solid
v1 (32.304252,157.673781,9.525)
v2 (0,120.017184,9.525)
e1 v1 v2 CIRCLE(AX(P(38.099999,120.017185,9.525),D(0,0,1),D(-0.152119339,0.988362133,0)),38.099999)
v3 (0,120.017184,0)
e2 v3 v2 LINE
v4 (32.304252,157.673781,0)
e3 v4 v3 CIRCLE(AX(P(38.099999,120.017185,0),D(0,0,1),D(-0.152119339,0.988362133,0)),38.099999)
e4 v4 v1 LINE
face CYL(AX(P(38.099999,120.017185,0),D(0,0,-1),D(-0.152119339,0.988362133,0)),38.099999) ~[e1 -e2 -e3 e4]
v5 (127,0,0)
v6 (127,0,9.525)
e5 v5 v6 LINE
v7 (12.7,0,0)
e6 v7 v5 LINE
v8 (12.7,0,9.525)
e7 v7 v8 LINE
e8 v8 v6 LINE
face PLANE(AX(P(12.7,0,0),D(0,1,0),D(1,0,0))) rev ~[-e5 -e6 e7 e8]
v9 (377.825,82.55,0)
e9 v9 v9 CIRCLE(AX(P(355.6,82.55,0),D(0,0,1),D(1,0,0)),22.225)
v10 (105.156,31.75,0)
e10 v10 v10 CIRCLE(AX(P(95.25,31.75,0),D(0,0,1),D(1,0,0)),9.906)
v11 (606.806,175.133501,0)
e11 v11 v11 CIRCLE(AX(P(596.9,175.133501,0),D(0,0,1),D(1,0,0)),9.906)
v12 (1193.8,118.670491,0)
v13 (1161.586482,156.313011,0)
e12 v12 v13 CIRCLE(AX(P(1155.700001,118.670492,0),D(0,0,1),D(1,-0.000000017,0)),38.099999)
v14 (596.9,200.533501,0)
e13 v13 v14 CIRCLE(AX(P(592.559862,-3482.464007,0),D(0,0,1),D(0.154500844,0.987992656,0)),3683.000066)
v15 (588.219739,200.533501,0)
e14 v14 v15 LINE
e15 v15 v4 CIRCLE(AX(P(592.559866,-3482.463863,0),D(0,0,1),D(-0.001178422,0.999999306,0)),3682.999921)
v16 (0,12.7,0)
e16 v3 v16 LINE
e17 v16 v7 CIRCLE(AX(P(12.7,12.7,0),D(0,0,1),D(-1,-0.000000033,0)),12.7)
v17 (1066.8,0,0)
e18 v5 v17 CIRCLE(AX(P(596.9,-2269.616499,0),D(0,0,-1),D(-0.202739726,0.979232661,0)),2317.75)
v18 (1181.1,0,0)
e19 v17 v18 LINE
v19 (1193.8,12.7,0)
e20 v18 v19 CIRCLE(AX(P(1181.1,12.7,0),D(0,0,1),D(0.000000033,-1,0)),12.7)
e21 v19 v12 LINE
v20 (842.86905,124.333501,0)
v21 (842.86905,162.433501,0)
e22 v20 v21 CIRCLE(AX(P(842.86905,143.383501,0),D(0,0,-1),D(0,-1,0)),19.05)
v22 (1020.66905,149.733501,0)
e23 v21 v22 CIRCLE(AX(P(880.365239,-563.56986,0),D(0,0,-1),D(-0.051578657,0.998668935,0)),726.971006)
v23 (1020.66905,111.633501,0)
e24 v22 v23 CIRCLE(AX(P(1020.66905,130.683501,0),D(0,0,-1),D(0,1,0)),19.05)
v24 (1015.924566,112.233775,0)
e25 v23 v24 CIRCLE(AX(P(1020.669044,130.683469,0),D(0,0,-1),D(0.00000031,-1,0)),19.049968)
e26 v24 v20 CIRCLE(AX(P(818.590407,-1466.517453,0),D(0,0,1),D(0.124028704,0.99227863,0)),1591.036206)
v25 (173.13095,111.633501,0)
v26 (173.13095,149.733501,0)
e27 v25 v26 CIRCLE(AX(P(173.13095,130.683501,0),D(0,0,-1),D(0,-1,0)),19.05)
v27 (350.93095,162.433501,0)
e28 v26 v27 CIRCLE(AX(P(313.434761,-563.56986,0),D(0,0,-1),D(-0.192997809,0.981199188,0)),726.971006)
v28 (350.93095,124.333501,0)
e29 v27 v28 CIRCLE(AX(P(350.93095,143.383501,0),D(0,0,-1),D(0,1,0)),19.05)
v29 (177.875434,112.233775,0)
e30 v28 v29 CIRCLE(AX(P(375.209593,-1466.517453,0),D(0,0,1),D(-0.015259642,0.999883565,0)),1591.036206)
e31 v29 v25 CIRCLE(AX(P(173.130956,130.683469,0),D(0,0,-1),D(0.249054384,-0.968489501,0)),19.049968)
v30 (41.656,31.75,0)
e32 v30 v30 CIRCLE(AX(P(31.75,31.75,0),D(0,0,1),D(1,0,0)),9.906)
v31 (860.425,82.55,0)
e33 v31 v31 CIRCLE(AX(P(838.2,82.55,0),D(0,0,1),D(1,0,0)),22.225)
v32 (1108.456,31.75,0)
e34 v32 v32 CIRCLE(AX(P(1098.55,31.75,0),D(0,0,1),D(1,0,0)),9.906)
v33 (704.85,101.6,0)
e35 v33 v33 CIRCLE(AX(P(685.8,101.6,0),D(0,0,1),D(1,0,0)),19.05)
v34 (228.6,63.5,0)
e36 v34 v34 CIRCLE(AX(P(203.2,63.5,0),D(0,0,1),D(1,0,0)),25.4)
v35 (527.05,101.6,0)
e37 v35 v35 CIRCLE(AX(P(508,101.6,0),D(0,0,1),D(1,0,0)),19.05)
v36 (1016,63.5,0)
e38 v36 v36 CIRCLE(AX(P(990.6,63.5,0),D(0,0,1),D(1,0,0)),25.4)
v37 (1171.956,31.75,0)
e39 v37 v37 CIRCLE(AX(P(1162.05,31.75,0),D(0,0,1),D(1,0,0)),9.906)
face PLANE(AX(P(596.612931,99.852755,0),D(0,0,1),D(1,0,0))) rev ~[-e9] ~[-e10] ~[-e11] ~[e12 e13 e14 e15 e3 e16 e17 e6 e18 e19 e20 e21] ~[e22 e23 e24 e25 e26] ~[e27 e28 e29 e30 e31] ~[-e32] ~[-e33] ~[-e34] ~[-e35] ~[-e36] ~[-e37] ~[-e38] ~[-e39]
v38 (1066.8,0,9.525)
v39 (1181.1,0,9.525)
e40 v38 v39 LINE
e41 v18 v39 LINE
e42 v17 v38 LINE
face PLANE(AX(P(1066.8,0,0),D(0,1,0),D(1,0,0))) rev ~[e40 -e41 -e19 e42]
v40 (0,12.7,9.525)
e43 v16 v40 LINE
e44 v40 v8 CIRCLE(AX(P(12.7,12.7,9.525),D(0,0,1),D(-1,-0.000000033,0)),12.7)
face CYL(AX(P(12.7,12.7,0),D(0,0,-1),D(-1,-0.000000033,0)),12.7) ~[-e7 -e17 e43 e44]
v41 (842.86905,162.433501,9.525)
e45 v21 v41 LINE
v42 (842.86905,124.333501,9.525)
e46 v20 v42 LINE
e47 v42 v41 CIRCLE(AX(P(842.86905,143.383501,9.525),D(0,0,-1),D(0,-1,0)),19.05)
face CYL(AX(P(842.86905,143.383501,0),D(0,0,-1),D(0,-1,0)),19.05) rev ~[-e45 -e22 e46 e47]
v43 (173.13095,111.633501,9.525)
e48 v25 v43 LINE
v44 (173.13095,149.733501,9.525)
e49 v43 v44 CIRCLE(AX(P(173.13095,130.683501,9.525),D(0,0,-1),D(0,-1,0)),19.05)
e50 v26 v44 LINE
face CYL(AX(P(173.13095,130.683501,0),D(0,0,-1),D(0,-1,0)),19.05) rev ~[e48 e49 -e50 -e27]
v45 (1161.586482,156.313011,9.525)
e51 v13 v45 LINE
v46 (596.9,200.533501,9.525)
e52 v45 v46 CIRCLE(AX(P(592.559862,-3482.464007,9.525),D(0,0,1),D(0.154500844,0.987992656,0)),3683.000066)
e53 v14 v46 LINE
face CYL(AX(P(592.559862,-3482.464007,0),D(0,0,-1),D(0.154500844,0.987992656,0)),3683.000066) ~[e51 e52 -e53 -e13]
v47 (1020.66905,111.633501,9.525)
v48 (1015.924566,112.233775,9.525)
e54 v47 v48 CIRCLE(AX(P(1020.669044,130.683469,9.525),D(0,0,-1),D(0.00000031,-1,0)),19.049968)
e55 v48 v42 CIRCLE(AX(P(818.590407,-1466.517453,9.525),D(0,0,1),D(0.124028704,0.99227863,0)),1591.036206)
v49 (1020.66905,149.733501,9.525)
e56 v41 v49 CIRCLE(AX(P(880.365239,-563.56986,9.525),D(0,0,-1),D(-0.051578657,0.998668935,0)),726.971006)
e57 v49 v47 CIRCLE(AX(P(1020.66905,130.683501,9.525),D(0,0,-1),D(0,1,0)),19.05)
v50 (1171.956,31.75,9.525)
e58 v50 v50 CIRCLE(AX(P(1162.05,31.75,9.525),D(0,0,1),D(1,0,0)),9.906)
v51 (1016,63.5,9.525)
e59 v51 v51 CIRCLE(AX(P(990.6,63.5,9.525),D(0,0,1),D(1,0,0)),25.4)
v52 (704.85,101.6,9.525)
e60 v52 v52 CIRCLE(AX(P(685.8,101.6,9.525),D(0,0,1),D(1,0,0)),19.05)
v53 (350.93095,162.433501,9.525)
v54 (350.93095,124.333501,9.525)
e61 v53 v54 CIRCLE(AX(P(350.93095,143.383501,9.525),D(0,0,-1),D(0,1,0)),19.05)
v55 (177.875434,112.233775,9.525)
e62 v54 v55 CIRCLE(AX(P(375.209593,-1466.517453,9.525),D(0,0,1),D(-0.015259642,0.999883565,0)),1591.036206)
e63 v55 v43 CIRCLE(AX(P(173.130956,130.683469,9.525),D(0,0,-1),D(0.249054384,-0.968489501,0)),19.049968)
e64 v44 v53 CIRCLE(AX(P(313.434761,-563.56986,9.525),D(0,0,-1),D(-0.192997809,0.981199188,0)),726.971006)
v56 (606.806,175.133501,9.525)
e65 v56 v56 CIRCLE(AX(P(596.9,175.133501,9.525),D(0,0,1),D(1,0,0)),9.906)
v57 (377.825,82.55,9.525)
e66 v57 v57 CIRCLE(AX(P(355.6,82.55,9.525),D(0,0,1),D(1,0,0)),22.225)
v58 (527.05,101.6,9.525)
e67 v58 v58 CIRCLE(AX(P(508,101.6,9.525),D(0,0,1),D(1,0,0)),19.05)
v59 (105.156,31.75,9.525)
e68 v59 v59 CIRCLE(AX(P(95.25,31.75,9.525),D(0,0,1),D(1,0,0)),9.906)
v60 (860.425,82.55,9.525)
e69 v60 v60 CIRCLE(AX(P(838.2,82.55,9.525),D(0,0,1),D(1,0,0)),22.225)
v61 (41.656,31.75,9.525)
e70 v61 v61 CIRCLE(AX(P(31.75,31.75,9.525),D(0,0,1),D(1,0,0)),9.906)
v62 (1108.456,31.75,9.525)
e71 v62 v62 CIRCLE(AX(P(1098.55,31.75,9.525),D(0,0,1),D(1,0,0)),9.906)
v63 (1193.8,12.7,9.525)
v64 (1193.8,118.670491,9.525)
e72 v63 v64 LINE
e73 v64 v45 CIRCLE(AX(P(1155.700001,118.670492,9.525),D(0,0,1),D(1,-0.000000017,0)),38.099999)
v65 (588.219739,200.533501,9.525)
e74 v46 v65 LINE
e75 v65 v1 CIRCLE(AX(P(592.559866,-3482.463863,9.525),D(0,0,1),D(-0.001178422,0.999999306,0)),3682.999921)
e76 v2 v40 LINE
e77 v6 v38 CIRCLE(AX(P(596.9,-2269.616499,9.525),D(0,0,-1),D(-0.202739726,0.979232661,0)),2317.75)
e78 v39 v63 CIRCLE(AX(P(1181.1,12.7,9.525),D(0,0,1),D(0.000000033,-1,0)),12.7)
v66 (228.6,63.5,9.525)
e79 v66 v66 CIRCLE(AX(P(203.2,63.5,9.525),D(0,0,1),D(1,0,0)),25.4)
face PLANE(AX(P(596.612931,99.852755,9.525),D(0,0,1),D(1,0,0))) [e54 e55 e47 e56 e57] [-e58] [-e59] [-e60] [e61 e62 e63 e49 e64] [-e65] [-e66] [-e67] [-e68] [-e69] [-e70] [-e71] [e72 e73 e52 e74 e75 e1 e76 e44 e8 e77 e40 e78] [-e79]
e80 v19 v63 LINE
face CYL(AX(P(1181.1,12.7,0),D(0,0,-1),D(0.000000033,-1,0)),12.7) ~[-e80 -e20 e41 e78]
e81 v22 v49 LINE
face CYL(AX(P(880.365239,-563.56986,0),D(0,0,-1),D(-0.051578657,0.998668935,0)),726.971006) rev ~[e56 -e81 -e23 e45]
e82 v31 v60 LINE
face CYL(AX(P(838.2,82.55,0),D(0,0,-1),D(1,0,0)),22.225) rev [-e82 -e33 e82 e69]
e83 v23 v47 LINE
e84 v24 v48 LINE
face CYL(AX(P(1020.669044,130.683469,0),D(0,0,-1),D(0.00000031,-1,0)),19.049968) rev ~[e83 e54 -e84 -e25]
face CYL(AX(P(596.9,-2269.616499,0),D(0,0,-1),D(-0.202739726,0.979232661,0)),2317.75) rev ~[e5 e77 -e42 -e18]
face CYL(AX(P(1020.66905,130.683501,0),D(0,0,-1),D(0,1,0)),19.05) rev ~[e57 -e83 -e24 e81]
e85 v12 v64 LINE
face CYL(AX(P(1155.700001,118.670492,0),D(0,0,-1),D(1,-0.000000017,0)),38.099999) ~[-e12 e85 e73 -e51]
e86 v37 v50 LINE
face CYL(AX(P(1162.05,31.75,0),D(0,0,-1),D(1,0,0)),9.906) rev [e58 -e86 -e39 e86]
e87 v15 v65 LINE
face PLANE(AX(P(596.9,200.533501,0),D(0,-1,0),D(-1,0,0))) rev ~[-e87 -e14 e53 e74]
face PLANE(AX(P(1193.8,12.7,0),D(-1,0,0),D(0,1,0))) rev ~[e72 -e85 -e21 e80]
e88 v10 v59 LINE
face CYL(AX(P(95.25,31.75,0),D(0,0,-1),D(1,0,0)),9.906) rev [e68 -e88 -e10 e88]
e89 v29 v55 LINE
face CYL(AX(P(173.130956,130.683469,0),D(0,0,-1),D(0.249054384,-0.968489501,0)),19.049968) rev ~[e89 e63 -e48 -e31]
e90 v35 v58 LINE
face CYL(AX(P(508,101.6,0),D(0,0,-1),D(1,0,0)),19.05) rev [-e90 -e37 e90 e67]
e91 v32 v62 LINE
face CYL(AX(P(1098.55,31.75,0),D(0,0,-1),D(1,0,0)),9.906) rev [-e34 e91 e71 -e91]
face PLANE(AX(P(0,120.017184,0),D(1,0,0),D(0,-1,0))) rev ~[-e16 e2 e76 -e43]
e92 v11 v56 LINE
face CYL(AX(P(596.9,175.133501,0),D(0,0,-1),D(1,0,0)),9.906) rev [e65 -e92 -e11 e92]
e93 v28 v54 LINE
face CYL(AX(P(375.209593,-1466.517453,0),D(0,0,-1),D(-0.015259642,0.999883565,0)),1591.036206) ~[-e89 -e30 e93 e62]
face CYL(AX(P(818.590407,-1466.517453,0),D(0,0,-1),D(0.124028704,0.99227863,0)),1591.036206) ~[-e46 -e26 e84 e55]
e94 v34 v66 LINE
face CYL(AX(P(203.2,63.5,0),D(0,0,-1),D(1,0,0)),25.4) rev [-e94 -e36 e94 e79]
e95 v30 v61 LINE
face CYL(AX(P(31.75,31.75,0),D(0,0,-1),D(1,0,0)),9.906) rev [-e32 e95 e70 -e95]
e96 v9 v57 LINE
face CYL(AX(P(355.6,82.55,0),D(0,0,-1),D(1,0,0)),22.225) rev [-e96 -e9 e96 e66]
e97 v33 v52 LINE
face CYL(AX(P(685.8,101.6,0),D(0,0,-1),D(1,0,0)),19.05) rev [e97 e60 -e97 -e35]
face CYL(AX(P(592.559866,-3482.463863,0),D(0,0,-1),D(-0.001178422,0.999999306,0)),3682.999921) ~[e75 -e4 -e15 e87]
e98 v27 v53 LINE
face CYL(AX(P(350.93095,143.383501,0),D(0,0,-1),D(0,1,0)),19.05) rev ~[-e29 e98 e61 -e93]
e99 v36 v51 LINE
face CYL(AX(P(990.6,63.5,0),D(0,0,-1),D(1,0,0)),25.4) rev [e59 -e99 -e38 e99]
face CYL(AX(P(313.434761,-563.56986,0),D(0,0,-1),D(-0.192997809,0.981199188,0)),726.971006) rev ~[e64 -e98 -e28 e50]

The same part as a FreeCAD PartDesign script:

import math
import FreeCAD as App
import Part
import Sketcher
Q = App.Units.Quantity

doc = App.newDocument("Part")
body = doc.addObject("PartDesign::Body", "Body")

sketch1 = body.newObject("Sketcher::SketchObject", "Sketch")
sketch1.AttachmentSupport = (doc.getObject("XY_Plane"), [""])
sketch1.MapMode = "FlatFace"
sketch1.addGeometry(Part.ArcOfCircle(Part.Circle(App.Vector(12.7, 12.7, 0), App.Vector(0, 0, 1), 12.7), math.radians(-179.999998), math.radians(-90.000002)), False)
sketch1.addGeometry(Part.LineSegment(App.Vector(12.7, 0, 0), App.Vector(127, 0, 0)), False)
sketch1.addGeometry(Part.ArcOfCircle(Part.Circle(App.Vector(596.9, -2269.616499, 0), App.Vector(0, 0, 1), 2317.75), math.radians(78.302783), math.radians(101.697217)), False)
sketch1.addGeometry(Part.LineSegment(App.Vector(1066.8, 0, 0), App.Vector(1181.1, 0, 0)), False)
sketch1.addGeometry(Part.ArcOfCircle(Part.Circle(App.Vector(1181.1, 12.7, 0), App.Vector(0, 0, 1), 12.7), math.radians(-89.999998), math.radians(-0.000002)), False)
sketch1.addGeometry(Part.LineSegment(App.Vector(1193.8, 12.7, 0), App.Vector(1193.8, 118.670491, 0)), False)
sketch1.addGeometry(Part.ArcOfCircle(Part.Circle(App.Vector(1155.700001, 118.670492, 0), App.Vector(0, 0, 1), 38.099999), math.radians(-0.000001), math.radians(81.112154)), False)
sketch1.addGeometry(Part.ArcOfCircle(Part.Circle(App.Vector(592.559862, -3482.464007, 0), App.Vector(0, 0, 1), 3683.000066), math.radians(81.112152), math.radians(89.932481)), False)
sketch1.addGeometry(Part.LineSegment(App.Vector(596.9, 200.533501, 0), App.Vector(588.219739, 200.533501, 0)), False)
sketch1.addGeometry(Part.ArcOfCircle(Part.Circle(App.Vector(592.559866, -3482.463863, 0), App.Vector(0, 0, 1), 3682.999921), math.radians(90.067519), math.radians(98.749767)), False)
sketch1.addGeometry(Part.ArcOfCircle(Part.Circle(App.Vector(38.099999, 120.017185, 0), App.Vector(0, 0, 1), 38.099999), math.radians(98.749765), math.radians(180.000002)), False)
sketch1.addGeometry(Part.LineSegment(App.Vector(0, 120.017184, 0), App.Vector(0, 12.7, 0)), False)
sketch1.addGeometry(Part.Circle(App.Vector(31.75, 31.75, 0), App.Vector(0, 0, 1), 9.906), False)
sketch1.addGeometry(Part.Circle(App.Vector(95.25, 31.75, 0), App.Vector(0, 0, 1), 9.906), False)
sketch1.addGeometry(Part.Circle(App.Vector(203.2, 63.5, 0), App.Vector(0, 0, 1), 25.4), False)
sketch1.addGeometry(Part.Circle(App.Vector(355.6, 82.55, 0), App.Vector(0, 0, 1), 22.225), False)
sketch1.addGeometry(Part.Circle(App.Vector(508, 101.6, 0), App.Vector(0, 0, 1), 19.05), False)
sketch1.addGeometry(Part.Circle(App.Vector(1098.55, 31.75, 0), App.Vector(0, 0, 1), 9.906), False)
sketch1.addGeometry(Part.Circle(App.Vector(1162.05, 31.75, 0), App.Vector(0, 0, 1), 9.906), False)
sketch1.addGeometry(Part.Circle(App.Vector(838.2, 82.55, 0), App.Vector(0, 0, 1), 22.225), False)
sketch1.addGeometry(Part.Circle(App.Vector(685.8, 101.6, 0), App.Vector(0, 0, 1), 19.05), False)
sketch1.addGeometry(Part.Circle(App.Vector(990.6, 63.5, 0), App.Vector(0, 0, 1), 25.4), False)
sketch1.addGeometry(Part.ArcOfCircle(Part.Circle(App.Vector(173.130956, 130.683469, 0), App.Vector(0, 0, 1), 19.049968), math.radians(-90.000018), math.radians(-75.578437)), False)
sketch1.addGeometry(Part.ArcOfCircle(Part.Circle(App.Vector(173.13095, 130.683501, 0), App.Vector(0, 0, 1), 19.05), math.radians(90), math.radians(270)), False)
sketch1.addGeometry(Part.ArcOfCircle(Part.Circle(App.Vector(313.434761, -563.56986, 0), App.Vector(0, 0, 1), 726.971006), math.radians(87.043449), math.radians(101.127785)), False)
sketch1.addGeometry(Part.ArcOfCircle(Part.Circle(App.Vector(350.93095, 143.383501, 0), App.Vector(0, 0, 1), 19.05), math.radians(-90), math.radians(90)), False)
sketch1.addGeometry(Part.ArcOfCircle(Part.Circle(App.Vector(375.209593, -1466.517453, 0), App.Vector(0, 0, 1), 1591.036206), math.radians(90.874347), math.radians(97.124668)), False)
sketch1.addGeometry(Part.ArcOfCircle(Part.Circle(App.Vector(1020.669044, 130.683469, 0), App.Vector(0, 0, 1), 19.049968), math.radians(-104.421563), math.radians(-89.999982)), False)
sketch1.addGeometry(Part.ArcOfCircle(Part.Circle(App.Vector(818.590407, -1466.517453, 0), App.Vector(0, 0, 1), 1591.036206), math.radians(82.875332), math.radians(89.125653)), False)
sketch1.addGeometry(Part.ArcOfCircle(Part.Circle(App.Vector(842.86905, 143.383501, 0), App.Vector(0, 0, 1), 19.05), math.radians(90), math.radians(270)), False)
sketch1.addGeometry(Part.ArcOfCircle(Part.Circle(App.Vector(880.365239, -563.56986, 0), App.Vector(0, 0, 1), 726.971006), math.radians(78.872215), math.radians(92.956551)), False)
sketch1.addGeometry(Part.ArcOfCircle(Part.Circle(App.Vector(1020.66905, 130.683501, 0), App.Vector(0, 0, 1), 19.05), math.radians(-90), math.radians(90)), False)
sketch1.addGeometry(Part.Circle(App.Vector(596.9, 175.133501, 0), App.Vector(0, 0, 1), 9.906), False)
sketch1.addConstraint(Sketcher.Constraint("Tangent", 0, 2, 1, 1))
sketch1.addConstraint(Sketcher.Constraint("Coincident", 1, 2, 2, 2))
sketch1.addConstraint(Sketcher.Constraint("Coincident", 2, 1, 3, 1))
sketch1.addConstraint(Sketcher.Constraint("Tangent", 3, 2, 4, 1))
sketch1.addConstraint(Sketcher.Constraint("Tangent", 4, 2, 5, 1))
sketch1.addConstraint(Sketcher.Constraint("Tangent", 5, 2, 6, 1))
sketch1.addConstraint(Sketcher.Constraint("Tangent", 6, 2, 7, 1))
sketch1.addConstraint(Sketcher.Constraint("Coincident", 7, 2, 8, 1))
sketch1.addConstraint(Sketcher.Constraint("Coincident", 8, 2, 9, 1))
sketch1.addConstraint(Sketcher.Constraint("Tangent", 9, 2, 10, 1))
sketch1.addConstraint(Sketcher.Constraint("Tangent", 10, 2, 11, 1))
sketch1.addConstraint(Sketcher.Constraint("Tangent", 11, 2, 0, 1))
sketch1.addConstraint(Sketcher.Constraint("Tangent", 22, 1, 23, 2))
sketch1.addConstraint(Sketcher.Constraint("Coincident", 23, 1, 24, 2))
sketch1.addConstraint(Sketcher.Constraint("Coincident", 24, 1, 25, 2))
sketch1.addConstraint(Sketcher.Constraint("Coincident", 25, 1, 26, 1))
sketch1.addConstraint(Sketcher.Constraint("Coincident", 26, 2, 22, 2))
sketch1.addConstraint(Sketcher.Constraint("Coincident", 27, 1, 28, 1))
sketch1.addConstraint(Sketcher.Constraint("Coincident", 28, 2, 29, 2))
sketch1.addConstraint(Sketcher.Constraint("Coincident", 29, 1, 30, 2))
sketch1.addConstraint(Sketcher.Constraint("Coincident", 30, 1, 31, 2))
sketch1.addConstraint(Sketcher.Constraint("Tangent", 31, 1, 27, 2))
sketch1.addConstraint(Sketcher.Constraint("Horizontal", 1))
sketch1.addConstraint(Sketcher.Constraint("Horizontal", 3))
sketch1.addConstraint(Sketcher.Constraint("Vertical", 5))
sketch1.addConstraint(Sketcher.Constraint("Horizontal", 8))
sketch1.addConstraint(Sketcher.Constraint("Vertical", 11))
sketch1.addConstraint(Sketcher.Constraint("Equal", 0, 4))
sketch1.addConstraint(Sketcher.Constraint("Equal", 6, 10))
sketch1.addConstraint(Sketcher.Constraint("Equal", 12, 13))
sketch1.addConstraint(Sketcher.Constraint("Equal", 13, 17))
sketch1.addConstraint(Sketcher.Constraint("Equal", 17, 18))
sketch1.addConstraint(Sketcher.Constraint("Equal", 15, 19))
sketch1.addConstraint(Sketcher.Constraint("Equal", 16, 20))
sketch1.addConstraint(Sketcher.Constraint("Equal", 14, 21))
sketch1.addConstraint(Sketcher.Constraint("Equal", 20, 23))
sketch1.addConstraint(Sketcher.Constraint("Equal", 23, 25))
sketch1.addConstraint(Sketcher.Constraint("Equal", 22, 27))
sketch1.addConstraint(Sketcher.Constraint("Equal", 26, 28))
sketch1.addConstraint(Sketcher.Constraint("Equal", 25, 29))
sketch1.addConstraint(Sketcher.Constraint("Equal", 24, 30))
sketch1.addConstraint(Sketcher.Constraint("Equal", 29, 31))
sketch1.addConstraint(Sketcher.Constraint("Equal", 18, 32))
sketch1.addConstraint(Sketcher.Constraint("PointOnObject", 0, 2, -1))
sketch1.addConstraint(Sketcher.Constraint("PointOnObject", 3, 2, -1))
sketch1.addConstraint(Sketcher.Constraint("PointOnObject", 10, 2, -2))
sketch1.addConstraint(Sketcher.Constraint("Horizontal", 12, 3, 13, 3))
sketch1.addConstraint(Sketcher.Constraint("Horizontal", 13, 3, 17, 3))
sketch1.addConstraint(Sketcher.Constraint("Horizontal", 17, 3, 18, 3))
sketch1.addConstraint(Sketcher.Constraint("Horizontal", 15, 3, 19, 3))
sketch1.addConstraint(Sketcher.Constraint("Horizontal", 16, 3, 20, 3))
sketch1.addConstraint(Sketcher.Constraint("Horizontal", 14, 3, 21, 3))
sketch1.addConstraint(Sketcher.Constraint("Horizontal", 22, 3, 27, 3))
sketch1.addConstraint(Sketcher.Constraint("Horizontal", 26, 3, 28, 3))
sketch1.addConstraint(Sketcher.Constraint("Horizontal", 25, 3, 29, 3))
sketch1.addConstraint(Sketcher.Constraint("Horizontal", 24, 3, 30, 3))
sketch1.addConstraint(Sketcher.Constraint("Horizontal", 26, 2, 27, 1))
sketch1.addConstraint(Sketcher.Constraint("Vertical", 2, 3, 32, 3))
sketch1.addConstraint(Sketcher.Constraint("Vertical", 23, 3, 22, 1))
sketch1.addConstraint(Sketcher.Constraint("Vertical", 22, 1, 23, 1))
sketch1.addConstraint(Sketcher.Constraint("Vertical", 25, 3, 24, 1))
sketch1.addConstraint(Sketcher.Constraint("Vertical", 24, 1, 25, 1))
sketch1.addConstraint(Sketcher.Constraint("Vertical", 31, 3, 30, 1))
sketch1.addConstraint(Sketcher.Constraint("Vertical", 30, 1, 31, 1))
sketch1.addConstraint(Sketcher.Constraint("Equal", 1, 3))
sketch1.addConstraint(Sketcher.Constraint("Diameter", 14, Q("2 in")))
sketch1.addConstraint(Sketcher.Constraint("Diameter", 16, Q("1.5 in")))
sketch1.addConstraint(Sketcher.Constraint("Radius", 0, Q("0.5 in")))
sketch1.addConstraint(Sketcher.Constraint("Radius", 6, Q("1.5 in")))
sketch1.addConstraint(Sketcher.Constraint("Diameter", 12, Q("0.78 in")))
sketch1.addConstraint(Sketcher.Constraint("Diameter", 15, Q("1.75 in")))
sketch1.addConstraint(Sketcher.Constraint("Radius", 2, Q("91.25 in")))
sketch1.addConstraint(Sketcher.Constraint("DistanceX", 1, 1, 1, 2, Q("4.5 in")))
sketch1.addConstraint(Sketcher.Constraint("DistanceX", -1, 1, 14, 3, Q("8 in")))
sketch1.addConstraint(Sketcher.Constraint("DistanceX", -1, 1, 15, 3, Q("14 in")))
sketch1.addConstraint(Sketcher.Constraint("DistanceX", -1, 1, 16, 3, Q("20 in")))
sketch1.addConstraint(Sketcher.Constraint("DistanceY", -1, 1, 16, 3, Q("4 in")))
sketch1.addConstraint(Sketcher.Constraint("DistanceX", -1, 1, 19, 3, Q("33 in")))
sketch1.addConstraint(Sketcher.Constraint("DistanceX", -1, 1, 20, 3, Q("27 in")))
sketch1.addConstraint(Sketcher.Constraint("DistanceX", -1, 1, 21, 3, Q("39 in")))
sketch1.addConstraint(Sketcher.Constraint("DistanceX", -1, 1, 4, 2, Q("47 in")))
sketch1.addConstraint(Sketcher.Constraint("DistanceY", 0, 3, 14, 3, Q("2 in")))
sketch1.addConstraint(Sketcher.Constraint("DistanceY", 13, 3, 15, 3, Q("2 in")))
sketch1.addConstraint(Sketcher.Constraint("DistanceX", 23, 3, 25, 3, Q("7 in")))
sketch1.addConstraint(Sketcher.Constraint("DistanceY", 32, 3, 7, 2, Q("1 in")))
sketch1.addConstraint(Sketcher.Constraint("DistanceX", 12, 3, 13, 3, Q("2.5 in")))
sketch1.addConstraint(Sketcher.Constraint("DistanceX", 17, 3, 18, 3, Q("2.5 in")))
sketch1.addConstraint(Sketcher.Constraint("DistanceY", 23, 3, 25, 3, Q("0.5 in")))
sketch1.addConstraint(Sketcher.Constraint("DistanceX", -1, 1, 12, 3, Q("1.25 in")))
sketch1.addConstraint(Sketcher.Constraint("DistanceY", -1, 1, 12, 3, Q("1.25 in")))
sketch1.addConstraint(Sketcher.Constraint("DistanceX", -1, 1, 17, 3, Q("43.25 in")))
sketch1.addConstraint(Sketcher.Constraint("DistanceY", 25, 3, 32, 3, Q("1.25 in")))
sketch1.addConstraint(Sketcher.Constraint("Radius", 9, Q("3682.999921 mm")))
sketch1.addConstraint(Sketcher.Constraint("Radius", 22, Q("19.049968 mm")))
sketch1.addConstraint(Sketcher.Constraint("Radius", 7, Q("3683.000066 mm")))
sketch1.addConstraint(Sketcher.Constraint("Radius", 24, Q("726.971006 mm")))
sketch1.addConstraint(Sketcher.Constraint("Radius", 26, Q("1591.036206 mm")))
sketch1.addConstraint(Sketcher.Constraint("DistanceX", 8, 2, 8, 1, Q("8.680261 mm")))
sketch1.addConstraint(Sketcher.Constraint("DistanceY", 5, 1, 5, 2, Q("105.970491 mm")))
sketch1.addConstraint(Sketcher.Constraint("DistanceY", -1, 1, 23, 3, Q("130.683501 mm")))
sketch1.addConstraint(Sketcher.Constraint("DistanceY", 11, 2, 11, 1, Q("107.317184 mm")))
sketch1.addConstraint(Sketcher.Constraint("DistanceX", -1, 1, 23, 3, Q("173.13095 mm")))
sketch1.addConstraint(Sketcher.Constraint("DistanceX", -1, 1, 29, 3, Q("842.86905 mm")))
sketch1.addConstraint(Sketcher.Constraint("DistanceX", -1, 1, 30, 3, Q("880.365239 mm")))
sketch1.addConstraint(Sketcher.Constraint("DistanceX", -1, 1, 8, 2, Q("588.219739 mm")))
sketch1.addConstraint(Sketcher.Constraint("DistanceX", 24, 3, 26, 3, Q("61.774832 mm")))
pad1 = body.newObject("PartDesign::Pad", "Pad")
pad1.Profile = sketch1
pad1.Length = Q("0.375 in")

doc.recompute()
